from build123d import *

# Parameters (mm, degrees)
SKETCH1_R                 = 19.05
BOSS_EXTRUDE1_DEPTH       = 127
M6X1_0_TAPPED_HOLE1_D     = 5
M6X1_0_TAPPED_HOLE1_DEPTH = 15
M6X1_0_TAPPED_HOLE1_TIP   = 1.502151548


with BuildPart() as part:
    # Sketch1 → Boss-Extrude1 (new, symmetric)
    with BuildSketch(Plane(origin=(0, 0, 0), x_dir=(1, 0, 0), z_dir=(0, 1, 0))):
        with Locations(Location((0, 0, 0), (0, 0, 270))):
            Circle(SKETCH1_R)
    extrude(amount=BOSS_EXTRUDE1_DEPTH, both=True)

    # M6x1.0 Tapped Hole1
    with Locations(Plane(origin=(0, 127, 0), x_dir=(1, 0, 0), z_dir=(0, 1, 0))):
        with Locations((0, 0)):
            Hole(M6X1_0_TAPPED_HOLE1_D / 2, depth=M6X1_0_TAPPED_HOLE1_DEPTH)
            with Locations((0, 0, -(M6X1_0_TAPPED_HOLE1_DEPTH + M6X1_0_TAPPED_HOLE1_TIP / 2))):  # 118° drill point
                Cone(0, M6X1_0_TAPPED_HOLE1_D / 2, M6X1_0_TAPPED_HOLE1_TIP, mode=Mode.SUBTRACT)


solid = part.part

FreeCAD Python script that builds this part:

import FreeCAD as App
import Part
import Sketcher
from FreeCAD import Vector
Q = App.Units.Quantity

doc = App.newDocument("Part")
body = doc.addObject("PartDesign::Body", "Body")

sketch1 = body.newObject("Sketcher::SketchObject", "Sketch")
sketch1.AttachmentSupport = (doc.getObject("XZ_Plane"), [""])
sketch1.MapMode = "FlatFace"
sketch1.addGeometry(Part.Circle(Vector(0, 0, 0), Vector(0, 0, 1), 19), False)
sketch1.addConstraint(Sketcher.Constraint("Coincident", 0, 3, -1, 1))
sketch1.addConstraint(Sketcher.Constraint("Diameter", 0, Q("38.1 mm")))
pad1 = body.newObject("PartDesign::Pad", "Pad")
pad1.Profile = sketch1
pad1.Length = 254
pad1.Midplane = True

sketch2 = body.newObject("Sketcher::SketchObject", "Sketch001")
sketch2.AttachmentSupport = (doc.getObject("XZ_Plane"), [""])
sketch2.MapMode = "FlatFace"
sketch2.AttachmentOffset = App.Placement(Vector(0, 0, -127), App.Rotation())
sketch2.addGeometry(Part.Circle(Vector(0, 0, 0), Vector(0, 0, 1), 2.5), False)
sketch2.addConstraint(Sketcher.Constraint("Coincident", 0, 3, -1, 1))
sketch2.addConstraint(Sketcher.Constraint("Diameter", 0, Q("5 mm")))
doc.recompute()
hole = body.newObject("PartDesign::Hole", "Hole")
hole.Profile = sketch2
hole.ThreadType = "None"
hole.Diameter = 5
hole.DepthType = "Dimension"
hole.Depth = 15
hole.DrillPoint = "Angled"
hole.DrillPointAngle = 118
hole.Reversed = True

doc.recompute()
